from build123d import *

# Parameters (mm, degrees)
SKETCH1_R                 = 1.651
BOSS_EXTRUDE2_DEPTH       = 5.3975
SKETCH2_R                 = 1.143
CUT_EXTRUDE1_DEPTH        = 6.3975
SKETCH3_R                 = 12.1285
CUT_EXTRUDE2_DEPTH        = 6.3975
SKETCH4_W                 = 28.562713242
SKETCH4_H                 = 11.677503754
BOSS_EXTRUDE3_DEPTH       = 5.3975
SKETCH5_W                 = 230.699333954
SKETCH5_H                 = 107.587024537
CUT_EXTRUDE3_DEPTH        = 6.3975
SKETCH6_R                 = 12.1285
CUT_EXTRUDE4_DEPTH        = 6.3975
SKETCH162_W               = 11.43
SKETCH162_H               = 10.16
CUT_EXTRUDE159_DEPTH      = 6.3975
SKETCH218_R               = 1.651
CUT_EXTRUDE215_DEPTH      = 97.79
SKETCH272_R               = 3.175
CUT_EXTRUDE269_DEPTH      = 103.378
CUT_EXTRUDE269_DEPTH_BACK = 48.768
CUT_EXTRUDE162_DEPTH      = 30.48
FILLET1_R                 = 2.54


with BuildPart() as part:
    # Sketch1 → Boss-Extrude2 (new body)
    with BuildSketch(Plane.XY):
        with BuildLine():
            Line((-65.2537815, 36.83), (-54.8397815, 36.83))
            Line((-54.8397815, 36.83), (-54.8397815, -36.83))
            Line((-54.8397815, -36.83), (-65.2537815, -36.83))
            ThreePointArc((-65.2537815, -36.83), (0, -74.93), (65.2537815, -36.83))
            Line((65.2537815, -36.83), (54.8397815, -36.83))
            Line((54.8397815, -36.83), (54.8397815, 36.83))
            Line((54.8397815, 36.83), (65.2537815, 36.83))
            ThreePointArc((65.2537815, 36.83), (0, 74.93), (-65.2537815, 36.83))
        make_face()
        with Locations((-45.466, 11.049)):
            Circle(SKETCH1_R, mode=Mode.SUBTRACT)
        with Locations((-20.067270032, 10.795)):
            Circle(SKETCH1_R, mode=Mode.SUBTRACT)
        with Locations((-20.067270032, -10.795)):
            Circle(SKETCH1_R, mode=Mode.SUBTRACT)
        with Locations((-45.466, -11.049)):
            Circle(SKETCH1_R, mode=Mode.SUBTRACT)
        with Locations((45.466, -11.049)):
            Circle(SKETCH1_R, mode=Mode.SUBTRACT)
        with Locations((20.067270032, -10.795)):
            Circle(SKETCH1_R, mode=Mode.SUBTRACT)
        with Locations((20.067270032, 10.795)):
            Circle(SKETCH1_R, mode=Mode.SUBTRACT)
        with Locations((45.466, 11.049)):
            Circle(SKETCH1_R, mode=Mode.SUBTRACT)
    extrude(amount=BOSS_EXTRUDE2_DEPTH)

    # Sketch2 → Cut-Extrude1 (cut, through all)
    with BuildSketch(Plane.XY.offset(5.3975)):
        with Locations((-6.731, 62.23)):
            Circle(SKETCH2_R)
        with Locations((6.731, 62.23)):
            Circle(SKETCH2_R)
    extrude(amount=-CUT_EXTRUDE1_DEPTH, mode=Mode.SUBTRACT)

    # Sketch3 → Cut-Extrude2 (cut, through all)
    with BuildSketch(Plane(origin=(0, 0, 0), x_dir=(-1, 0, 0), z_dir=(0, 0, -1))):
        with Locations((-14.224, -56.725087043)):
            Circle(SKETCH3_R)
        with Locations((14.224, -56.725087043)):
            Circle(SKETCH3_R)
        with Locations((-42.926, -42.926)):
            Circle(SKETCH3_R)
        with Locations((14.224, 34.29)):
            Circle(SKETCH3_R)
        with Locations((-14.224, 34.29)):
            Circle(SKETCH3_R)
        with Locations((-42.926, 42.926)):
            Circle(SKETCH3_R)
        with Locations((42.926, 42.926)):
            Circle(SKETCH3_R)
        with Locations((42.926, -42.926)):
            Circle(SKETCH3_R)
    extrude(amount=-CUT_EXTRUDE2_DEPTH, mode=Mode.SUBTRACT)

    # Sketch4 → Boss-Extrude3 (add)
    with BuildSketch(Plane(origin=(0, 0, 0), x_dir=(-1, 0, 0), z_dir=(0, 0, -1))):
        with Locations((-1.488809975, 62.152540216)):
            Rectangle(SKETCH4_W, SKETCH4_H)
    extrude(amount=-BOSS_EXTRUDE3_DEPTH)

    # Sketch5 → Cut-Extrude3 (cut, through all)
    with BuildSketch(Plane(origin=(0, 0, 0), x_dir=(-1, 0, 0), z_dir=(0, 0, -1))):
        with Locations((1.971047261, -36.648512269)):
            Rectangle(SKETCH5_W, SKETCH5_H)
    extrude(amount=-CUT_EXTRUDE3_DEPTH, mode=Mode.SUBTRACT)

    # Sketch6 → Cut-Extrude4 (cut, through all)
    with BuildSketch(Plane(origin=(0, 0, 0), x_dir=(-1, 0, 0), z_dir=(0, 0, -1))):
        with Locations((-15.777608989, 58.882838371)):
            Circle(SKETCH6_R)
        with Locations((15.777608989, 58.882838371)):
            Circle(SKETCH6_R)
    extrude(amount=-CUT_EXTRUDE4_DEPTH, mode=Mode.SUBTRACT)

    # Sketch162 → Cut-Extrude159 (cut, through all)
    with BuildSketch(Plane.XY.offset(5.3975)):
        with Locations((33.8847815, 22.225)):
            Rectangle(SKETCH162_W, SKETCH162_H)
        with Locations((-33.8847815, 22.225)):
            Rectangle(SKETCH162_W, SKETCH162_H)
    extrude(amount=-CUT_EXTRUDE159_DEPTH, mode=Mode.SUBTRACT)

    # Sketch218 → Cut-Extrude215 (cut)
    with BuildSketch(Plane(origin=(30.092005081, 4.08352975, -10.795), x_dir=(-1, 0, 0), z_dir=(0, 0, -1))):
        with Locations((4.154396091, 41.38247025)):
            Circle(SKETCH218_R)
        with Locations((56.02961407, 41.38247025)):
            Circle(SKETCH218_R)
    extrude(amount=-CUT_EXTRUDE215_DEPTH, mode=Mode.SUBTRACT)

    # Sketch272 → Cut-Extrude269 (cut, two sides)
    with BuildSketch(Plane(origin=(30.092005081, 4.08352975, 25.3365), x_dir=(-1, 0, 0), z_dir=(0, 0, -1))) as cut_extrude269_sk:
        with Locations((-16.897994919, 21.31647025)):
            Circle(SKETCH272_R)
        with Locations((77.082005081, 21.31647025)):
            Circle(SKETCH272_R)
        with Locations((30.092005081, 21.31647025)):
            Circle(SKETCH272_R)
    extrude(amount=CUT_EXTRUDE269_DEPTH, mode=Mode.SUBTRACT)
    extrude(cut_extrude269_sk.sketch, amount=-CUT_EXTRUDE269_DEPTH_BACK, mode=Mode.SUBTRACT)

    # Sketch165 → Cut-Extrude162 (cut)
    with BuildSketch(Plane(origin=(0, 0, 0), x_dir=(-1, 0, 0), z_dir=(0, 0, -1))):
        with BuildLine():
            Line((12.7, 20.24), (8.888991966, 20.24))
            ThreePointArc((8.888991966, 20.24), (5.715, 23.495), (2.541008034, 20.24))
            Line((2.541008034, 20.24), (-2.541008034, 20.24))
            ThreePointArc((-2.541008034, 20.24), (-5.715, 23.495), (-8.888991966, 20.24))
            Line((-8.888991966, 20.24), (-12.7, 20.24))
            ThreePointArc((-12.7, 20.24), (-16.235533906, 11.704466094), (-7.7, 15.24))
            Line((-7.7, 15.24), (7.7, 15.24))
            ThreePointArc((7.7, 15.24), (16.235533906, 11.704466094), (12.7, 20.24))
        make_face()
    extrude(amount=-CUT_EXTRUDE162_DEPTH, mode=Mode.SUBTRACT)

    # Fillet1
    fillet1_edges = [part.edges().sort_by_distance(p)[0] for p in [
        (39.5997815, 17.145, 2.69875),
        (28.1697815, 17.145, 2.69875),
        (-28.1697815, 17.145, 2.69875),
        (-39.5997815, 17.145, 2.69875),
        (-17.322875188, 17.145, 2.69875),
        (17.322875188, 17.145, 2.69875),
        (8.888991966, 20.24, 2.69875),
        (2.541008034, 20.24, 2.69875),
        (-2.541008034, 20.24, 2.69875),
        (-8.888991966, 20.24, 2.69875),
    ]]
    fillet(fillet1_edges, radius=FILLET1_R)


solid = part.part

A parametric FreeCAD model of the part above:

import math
import FreeCAD as App
import Part
import Sketcher

V = App.Vector
Q = App.Units.Quantity


def edges_at(feature, points):
    """Names of the edges that pass closest to the given points."""
    edges = feature.Shape.Edges
    near = lambda p: min(range(len(edges)), key=lambda i: edges[i].distToShape(Part.Vertex(*p))[0])
    return sorted({f"Edge{near(p) + 1}" for p in points})

doc = App.newDocument("Part")
params = doc.addObject("Spreadsheet::Sheet", "Params")
for row, (alias, value) in enumerate([
    ("sketch1_diameter", "0.13 in"),
    ("sketch1_radius", "2.95 in"),
    ("sketch1_height", "2.9 in"),
    ("sketch1_width", "0.41 in"),
    ("pad1_length", "0.2125 in"),
    ("sketch2_diameter", "0.09 in"),
    ("sketch3_diameter", "0.955 in"),
    ("pad2_length", "0.2125 in"),
    ("sketch6_diameter", "0.955 in"),
    ("sketch7_height", "0.4 in"),
    ("sketch7_width", "0.45 in"),
    ("sketch8_diameter", "0.13 in"),
    ("pocket6_length", "3.85 in"),
    ("sketch9_diameter", "0.25 in"),
    ("sketch10_radius", "0.125 in"),
    ("pocket8_length", "1.2 in"),
    ("fillet_radius", "0.1 in"),
], start=1):
    params.set(f"A{row}", alias)
    params.set(f"B{row}", "=" + value)
    params.setAlias(f"B{row}", alias)

body = doc.addObject("PartDesign::Body", "Body")

sketch1 = body.newObject("Sketcher::SketchObject", "Sketch")
sketch1.AttachmentSupport = (doc.getObject("XY_Plane"), [""])
sketch1.MapMode = "FlatFace"
sketch1.addGeometry([
    Part.LineSegment(V(-65.253782, 36.83, 0), V(-54.839782, 36.83, 0)),
    Part.LineSegment(V(-54.839782, 36.83, 0), V(-54.839782, -36.83, 0)),
    Part.LineSegment(V(-54.839782, -36.83, 0), V(-65.253782, -36.83, 0)),
    Part.ArcOfCircle(Part.Circle(V(0, 0, 0), V(0, 0, 1), 74.93), math.radians(-150.559107), math.radians(-29.440893)),
    Part.LineSegment(V(65.253782, -36.83, 0), V(54.839782, -36.83, 0)),
    Part.LineSegment(V(54.839782, -36.83, 0), V(54.839782, 36.83, 0)),
    Part.LineSegment(V(54.839782, 36.83, 0), V(65.253782, 36.83, 0)),
    Part.ArcOfCircle(Part.Circle(V(0, 0, 0), V(0, 0, 1), 74.93), math.radians(29.440893), math.radians(150.559107)),
    Part.Circle(V(-45.466, -11.049, 0), V(0, 0, 1), 1.651),
    Part.Circle(V(-20.06727, -10.795, 0), V(0, 0, 1), 1.651),
    Part.Circle(V(20.06727, -10.795, 0), V(0, 0, 1), 1.651),
    Part.Circle(V(45.466, -11.049, 0), V(0, 0, 1), 1.651),
    Part.Circle(V(-45.466, 11.049, 0), V(0, 0, 1), 1.651),
    Part.Circle(V(-20.06727, 10.795, 0), V(0, 0, 1), 1.651),
    Part.Circle(V(20.06727, 10.795, 0), V(0, 0, 1), 1.651),
    Part.Circle(V(45.466, 11.049, 0), V(0, 0, 1), 1.651),
], False)
sketch1.addConstraint([
    Sketcher.Constraint("Coincident", 0, 2, 1, 1),
    Sketcher.Constraint("Coincident", 1, 2, 2, 1),
    Sketcher.Constraint("Coincident", 2, 2, 3, 1),
    Sketcher.Constraint("Coincident", 3, 2, 4, 1),
    Sketcher.Constraint("Coincident", 4, 2, 5, 1),
    Sketcher.Constraint("Coincident", 5, 2, 6, 1),
    Sketcher.Constraint("Coincident", 6, 2, 7, 1),
    Sketcher.Constraint("Coincident", 7, 2, 0, 1),
    Sketcher.Constraint("Horizontal", 0),
    Sketcher.Constraint("Vertical", 1),
    Sketcher.Constraint("Horizontal", 2),
    Sketcher.Constraint("Horizontal", 4),
    Sketcher.Constraint("Vertical", 5),
    Sketcher.Constraint("Horizontal", 6),
    Sketcher.Constraint("Coincident", 3, 3, -1, 1),
    Sketcher.Constraint("Coincident", 7, 3, -1, 1),
    Sketcher.Constraint("Equal", 3, 7),
    Sketcher.Constraint("Equal", 8, 9),
    Sketcher.Constraint("Equal", 9, 10),
    Sketcher.Constraint("Equal", 10, 11),
    Sketcher.Constraint("Equal", 11, 12),
    Sketcher.Constraint("Equal", 12, 13),
    Sketcher.Constraint("Equal", 13, 14),
    Sketcher.Constraint("Equal", 14, 15),
    Sketcher.Constraint("Symmetric", 11, 3, 12, 3, -1, 1),
    Sketcher.Constraint("Symmetric", 10, 3, 13, 3, -1, 1),
    Sketcher.Constraint("Symmetric", 9, 3, 14, 3, -1, 1),
    Sketcher.Constraint("Symmetric", 8, 3, 15, 3, -1, 1),
    Sketcher.Constraint("Symmetric", 0, 2, 4, 2, -1, 1),
    Sketcher.Constraint("Symmetric", 9, 3, 10, 3, -2),
    Sketcher.Constraint("Symmetric", 8, 3, 11, 3, -2),
    Sketcher.Constraint("Horizontal", 2, 2, 3, 2),
    Sketcher.Constraint("Horizontal", 0, 2, 5, 2),
    Sketcher.Constraint("Diameter", 8, Q("0.13 in")),
    Sketcher.Constraint("Radius", 3, Q("2.95 in")),
    Sketcher.Constraint("DistanceY", 1, 2, 1, 1, Q("2.9 in")),
    Sketcher.Constraint("DistanceX", 0, 1, 0, 2, Q("0.41 in")),
    Sketcher.Constraint("DistanceX", 8, 3, -1, 1, Q("1.79 in")),
    Sketcher.Constraint("DistanceY", 8, 3, 9, 3, Q("0.01 in")),
    Sketcher.Constraint("DistanceY", 8, 3, 12, 3, Q("0.87 in")),
    Sketcher.Constraint("DistanceX", 9, 3, 10, 3, Q("1.5801 in")),
])
sketch1.setExpression("Constraints[33]", "Params.sketch1_diameter")
sketch1.setExpression("Constraints[34]", "Params.sketch1_radius")
sketch1.setExpression("Constraints[35]", "Params.sketch1_height")
sketch1.setExpression("Constraints[36]", "Params.sketch1_width")
pad1 = body.newObject("PartDesign::Pad", "Pad")
pad1.Profile = sketch1
pad1.setExpression("Length", "Params.pad1_length")

sketch2 = body.newObject("Sketcher::SketchObject", "Sketch001")
sketch2.AttachmentSupport = (doc.getObject("XY_Plane"), [""])
sketch2.MapMode = "FlatFace"
sketch2.AttachmentOffset = App.Placement(V(0, 0, 0.2125 * 25.4), App.Rotation())
sketch2.addGeometry([
    Part.Circle(V(-6.731, 62.23, 0), V(0, 0, 1), 1.143),
    Part.Circle(V(6.731, 62.23, 0), V(0, 0, 1), 1.143),
], False)
sketch2.addConstraint([
    Sketcher.Constraint("Equal", 0, 1),
    Sketcher.Constraint("Symmetric", 0, 3, 1, 3, -2),
    Sketcher.Constraint("Diameter", 0, Q("0.09 in")),
    Sketcher.Constraint("DistanceY", -1, 1, 0, 3, Q("2.45 in")),
    Sketcher.Constraint("DistanceX", 0, 3, 1, 3, Q("0.53 in")),
])
sketch2.setExpression("Constraints[2]", "Params.sketch2_diameter")
pocket1 = body.newObject("PartDesign::Pocket", "Pocket")
pocket1.Profile = sketch2
pocket1.Type = "ThroughAll"

sketch3 = body.newObject("Sketcher::SketchObject", "Sketch002")
sketch3.AttachmentSupport = (doc.getObject("XY_Plane"), [""])
sketch3.MapMode = "FlatFace"
sketch3.addGeometry([
    Part.Circle(V(14.224, -56.725087, 0), V(0, 0, 1), 12.1285),
    Part.Circle(V(-14.224, -56.725087, 0), V(0, 0, 1), 12.1285),
    Part.Circle(V(42.926, -42.926, 0), V(0, 0, 1), 12.1285),
    Part.Circle(V(-14.224, 34.29, 0), V(0, 0, 1), 12.1285),
    Part.Circle(V(14.224, 34.29, 0), V(0, 0, 1), 12.1285),
    Part.Circle(V(42.926, 42.926, 0), V(0, 0, 1), 12.1285),
    Part.Circle(V(-42.926, 42.926, 0), V(0, 0, 1), 12.1285),
    Part.Circle(V(-42.926, -42.926, 0), V(0, 0, 1), 12.1285),
], False)
sketch3.addConstraint([
    Sketcher.Constraint("Equal", 0, 1),
    Sketcher.Constraint("Equal", 1, 2),
    Sketcher.Constraint("Equal", 2, 3),
    Sketcher.Constraint("Equal", 3, 4),
    Sketcher.Constraint("Equal", 4, 5),
    Sketcher.Constraint("Equal", 5, 6),
    Sketcher.Constraint("Equal", 6, 7),
    Sketcher.Constraint("Symmetric", 2, 3, 6, 3, -1, 1),
    Sketcher.Constraint("Symmetric", 5, 3, 7, 3, -1, 1),
    Sketcher.Constraint("Symmetric", 0, 3, 1, 3, -2),
    Sketcher.Constraint("Symmetric", 3, 3, 4, 3, -2),
    Sketcher.Constraint("Symmetric", 5, 3, 6, 3, -2),
    Sketcher.Constraint("Vertical", 1, 3, 3, 3),
    Sketcher.Constraint("Diameter", 0, Q("0.955 in")),
    Sketcher.Constraint("DistanceX", -1, 1, 0, 3, Q("0.56 in")),
    Sketcher.Constraint("DistanceX", -1, 1, 2, 3, Q("1.69 in")),
    Sketcher.Constraint("DistanceY", 2, 3, -1, 1, Q("1.69 in")),
    Sketcher.Constraint("DistanceY", -1, 1, 3, 3, Q("1.35 in")),
    Sketcher.Constraint("DistanceY", 0, 3, -1, 1, 56.725087),
])
sketch3.setExpression("Constraints[13]", "Params.sketch3_diameter")
pocket2 = body.newObject("PartDesign::Pocket", "Pocket001")
pocket2.Profile = sketch3
pocket2.Type = "ThroughAll"
pocket2.Reversed = True

sketch4 = body.newObject("Sketcher::SketchObject", "Sketch003")
sketch4.AttachmentSupport = (doc.getObject("XY_Plane"), [""])
sketch4.MapMode = "FlatFace"
sketch4.addGeometry([
    Part.LineSegment(V(15.770167, 67.991292, 0), V(15.770167, 56.313788, 0)),
    Part.LineSegment(V(15.770167, 56.313788, 0), V(-12.792547, 56.313788, 0)),
    Part.LineSegment(V(-12.792547, 56.313788, 0), V(-12.792547, 67.991292, 0)),
    Part.LineSegment(V(-12.792547, 67.991292, 0), V(15.770167, 67.991292, 0)),
], False)
sketch4.addConstraint([
    Sketcher.Constraint("Coincident", 0, 2, 1, 1),
    Sketcher.Constraint("Coincident", 1, 2, 2, 1),
    Sketcher.Constraint("Coincident", 2, 2, 3, 1),
    Sketcher.Constraint("Coincident", 3, 2, 0, 1),
    Sketcher.Constraint("Vertical", 0),
    Sketcher.Constraint("Horizontal", 1),
    Sketcher.Constraint("Vertical", 2),
    Sketcher.Constraint("Horizontal", 3),
    Sketcher.Constraint("DistanceX", 1, 2, 1, 1, 28.562713),
    Sketcher.Constraint("DistanceY", 0, 2, 0, 1, 11.677504),
    Sketcher.Constraint("DistanceY", -1, 1, 0, 2, 56.313788),
    Sketcher.Constraint("DistanceX", -1, 1, 0, 2, 15.770167),
])
pad2 = body.newObject("PartDesign::Pad", "Pad001")
pad2.Profile = sketch4
pad2.setExpression("Length", "Params.pad2_length")

sketch5 = body.newObject("Sketcher::SketchObject", "Sketch004")
sketch5.AttachmentSupport = (doc.getObject("XY_Plane"), [""])
sketch5.MapMode = "FlatFace"
sketch5.addGeometry([
    Part.LineSegment(V(113.37862, 17.145, 0), V(113.37862, -90.442025, 0)),
    Part.LineSegment(V(113.37862, -90.442025, 0), V(-117.320714, -90.442025, 0)),
    Part.LineSegment(V(-117.320714, -90.442025, 0), V(-117.320714, 17.145, 0)),
    Part.LineSegment(V(-117.320714, 17.145, 0), V(113.37862, 17.145, 0)),
], False)
sketch5.addConstraint([
    Sketcher.Constraint("Coincident", 0, 2, 1, 1),
    Sketcher.Constraint("Coincident", 1, 2, 2, 1),
    Sketcher.Constraint("Coincident", 2, 2, 3, 1),
    Sketcher.Constraint("Coincident", 3, 2, 0, 1),
    Sketcher.Constraint("Vertical", 0),
    Sketcher.Constraint("Horizontal", 1),
    Sketcher.Constraint("Vertical", 2),
    Sketcher.Constraint("Horizontal", 3),
    Sketcher.Constraint("DistanceY", -1, 1, 2, 2, Q("0.675 in")),
    Sketcher.Constraint("DistanceX", 1, 2, 1, 1, 230.699334),
    Sketcher.Constraint("DistanceY", 0, 2, 0, 1, 107.587025),
    Sketcher.Constraint("DistanceX", -1, 1, 0, 2, 113.37862),
])
pocket3 = body.newObject("PartDesign::Pocket", "Pocket002")
pocket3.Profile = sketch5
pocket3.Type = "ThroughAll"
pocket3.Reversed = True

sketch6 = body.newObject("Sketcher::SketchObject", "Sketch005")
sketch6.AttachmentSupport = (doc.getObject("XY_Plane"), [""])
sketch6.MapMode = "FlatFace"
sketch6.addGeometry([
    Part.Circle(V(15.777609, 58.882838, 0), V(0, 0, 1), 12.1285),
    Part.Circle(V(-15.777609, 58.882838, 0), V(0, 0, 1), 12.1285),
], False)
sketch6.addConstraint([
    Sketcher.Constraint("Equal", 0, 1),
    Sketcher.Constraint("Symmetric", 0, 3, 1, 3, -2),
    Sketcher.Constraint("Diameter", 0, Q("0.955 in")),
    Sketcher.Constraint("DistanceX", -1, 1, 0, 3, 15.777609),
    Sketcher.Constraint("DistanceY", -1, 1, 0, 3, 58.882838),
])
sketch6.setExpression("Constraints[2]", "Params.sketch6_diameter")
pocket4 = body.newObject("PartDesign::Pocket", "Pocket003")
pocket4.Profile = sketch6
pocket4.Type = "ThroughAll"
pocket4.Reversed = True

sketch7 = body.newObject("Sketcher::SketchObject", "Sketch006")
sketch7.AttachmentSupport = (doc.getObject("XY_Plane"), [""])
sketch7.MapMode = "FlatFace"
sketch7.AttachmentOffset = App.Placement(V(0, 0, 0.2125 * 25.4), App.Rotation())
sketch7.addGeometry([
    Part.LineSegment(V(28.169781, 27.305, 0), V(28.169781, 17.145, 0)),
    Part.LineSegment(V(28.169781, 17.145, 0), V(39.599781, 17.145, 0)),
    Part.LineSegment(V(39.599781, 17.145, 0), V(39.599781, 27.305, 0)),
    Part.LineSegment(V(39.599781, 27.305, 0), V(28.169781, 27.305, 0)),
    Part.LineSegment(V(-39.599781, 27.305, 0), V(-39.599781, 17.145, 0)),
    Part.LineSegment(V(-39.599781, 17.145, 0), V(-28.169781, 17.145, 0)),
    Part.LineSegment(V(-28.169781, 17.145, 0), V(-28.169781, 27.305, 0)),
    Part.LineSegment(V(-28.169781, 27.305, 0), V(-39.599781, 27.305, 0)),
], False)
sketch7.addConstraint([
    Sketcher.Constraint("Coincident", 0, 2, 1, 1),
    Sketcher.Constraint("Coincident", 1, 2, 2, 1),
    Sketcher.Constraint("Coincident", 2, 2, 3, 1),
    Sketcher.Constraint("Coincident", 3, 2, 0, 1),
    Sketcher.Constraint("Coincident", 4, 2, 5, 1),
    Sketcher.Constraint("Coincident", 5, 2, 6, 1),
    Sketcher.Constraint("Coincident", 6, 2, 7, 1),
    Sketcher.Constraint("Coincident", 7, 2, 4, 1),
    Sketcher.Constraint("Vertical", 0),
    Sketcher.Constraint("Horizontal", 1),
    Sketcher.Constraint("Vertical", 2),
    Sketcher.Constraint("Horizontal", 3),
    Sketcher.Constraint("Vertical", 4),
    Sketcher.Constraint("Horizontal", 5),
    Sketcher.Constraint("Vertical", 6),
    Sketcher.Constraint("Horizontal", 7),
    Sketcher.Constraint("Symmetric", 1, 2, 4, 2, -2),
    Sketcher.Constraint("Symmetric", 3, 2, 6, 2, -2),
    Sketcher.Constraint("DistanceY", 0, 2, 0, 1, Q("0.4 in")),
    Sketcher.Constraint("DistanceX", 1, 1, 1, 2, Q("0.45 in")),
    Sketcher.Constraint("DistanceY", -1, 1, 0, 2, Q("0.675 in")),
    Sketcher.Constraint("DistanceX", -1, 1, 0, 2, 28.169781),
])
sketch7.setExpression("Constraints[18]", "Params.sketch7_height")
sketch7.setExpression("Constraints[19]", "Params.sketch7_width")
pocket5 = body.newObject("PartDesign::Pocket", "Pocket004")
pocket5.Profile = sketch7
pocket5.Type = "ThroughAll"

sketch8 = body.newObject("Sketcher::SketchObject", "Sketch007")
sketch8.AttachmentSupport = (doc.getObject("XY_Plane"), [""])
sketch8.MapMode = "FlatFace"
sketch8.AttachmentOffset = App.Placement(V(0, 0, -0.425 * 25.4), App.Rotation())
sketch8.addGeometry([
    Part.Circle(V(25.937609, 45.466, 0), V(0, 0, 1), 1.651),
    Part.Circle(V(-25.937609, 45.466, 0), V(0, 0, 1), 1.651),
], False)
sketch8.addConstraint([
    Sketcher.Constraint("Equal", 0, 1),
    Sketcher.Constraint("Symmetric", 0, 3, 1, 3, -2),
    Sketcher.Constraint("Diameter", 0, Q("0.13 in")),
    Sketcher.Constraint("DistanceY", -1, 1, 0, 3, Q("1.79 in")),
    Sketcher.Constraint("DistanceX", -1, 1, 0, 3, 25.937609),
])
sketch8.setExpression("Constraints[2]", "Params.sketch8_diameter")
pocket6 = body.newObject("PartDesign::Pocket", "Pocket005")
pocket6.Profile = sketch8
pocket6.setExpression("Length", "Params.pocket6_length")
pocket6.Reversed = True

sketch9 = body.newObject("Sketcher::SketchObject", "Sketch008")
sketch9.AttachmentSupport = (doc.getObject("XY_Plane"), [""])
sketch9.MapMode = "FlatFace"
sketch9.AttachmentOffset = App.Placement(V(0, 0, 0.9975 * 25.4), App.Rotation())
sketch9.addGeometry([
    Part.Circle(V(46.99, 25.4, 0), V(0, 0, 1), 3.175),
    Part.Circle(V(-46.99, 25.4, 0), V(0, 0, 1), 3.175),
    Part.Circle(V(0, 25.4, 0), V(0, 0, 1), 3.175),
], False)
sketch9.addConstraint([
    Sketcher.Constraint("Equal", 0, 1),
    Sketcher.Constraint("Equal", 1, 2),
    Sketcher.Constraint("Symmetric", 0, 3, 1, 3, -2),
    Sketcher.Constraint("PointOnObject", 2, 3, -2),
    Sketcher.Constraint("Horizontal", 1, 3, 2, 3),
    Sketcher.Constraint("Diameter", 0, Q("0.25 in")),
    Sketcher.Constraint("DistanceY", -1, 1, 0, 3, Q("1 in")),
    Sketcher.Constraint("DistanceX", 1, 3, 0, 3, Q("3.7 in")),
])
sketch9.setExpression("Constraints[5]", "Params.sketch9_diameter")
pocket7 = body.newObject("PartDesign::Pocket", "Pocket006")
pocket7.Profile = sketch9
pocket7.Type = "ThroughAll"
pocket7.Midplane = True

sketch10 = body.newObject("Sketcher::SketchObject", "Sketch009")
sketch10.AttachmentSupport = (doc.getObject("XY_Plane"), [""])
sketch10.MapMode = "FlatFace"
sketch10.addGeometry([
    Part.LineSegment(V(-12.7, 20.24, 0), V(-8.888992, 20.24, 0)),
    Part.ArcOfCircle(Part.Circle(V(-5.715, 20.32, 0), V(0, 0, 1), 3.175), math.radians(-1.443826), math.radians(181.443826)),
    Part.LineSegment(V(-2.541008, 20.24, 0), V(2.541008, 20.24, 0)),
    Part.ArcOfCircle(Part.Circle(V(5.715, 20.32, 0), V(0, 0, 1), 3.175), math.radians(-1.443826), math.radians(181.443826)),
    Part.LineSegment(V(8.888992, 20.24, 0), V(12.7, 20.24, 0)),
    Part.ArcOfCircle(Part.Circle(V(12.7, 15.24, 0), V(0, 0, 1), 5), math.radians(180), math.radians(450)),
    Part.LineSegment(V(7.7, 15.24, 0), V(-7.7, 15.24, 0)),
    Part.ArcOfCircle(Part.Circle(V(-12.7, 15.24, 0), V(0, 0, 1), 5), math.radians(90), math.radians(360)),
], False)
sketch10.addConstraint([
    Sketcher.Constraint("Coincident", 0, 2, 1, 2),
    Sketcher.Constraint("Coincident", 1, 1, 2, 1),
    Sketcher.Constraint("Coincident", 2, 2, 3, 2),
    Sketcher.Constraint("Coincident", 3, 1, 4, 1),
    Sketcher.Constraint("Tangent", 4, 2, 5, 2),
    Sketcher.Constraint("Coincident", 5, 1, 6, 1),
    Sketcher.Constraint("Coincident", 6, 2, 7, 2),
    Sketcher.Constraint("Tangent", 7, 1, 0, 1),
    Sketcher.Constraint("Horizontal", 0),
    Sketcher.Constraint("Horizontal", 2),
    Sketcher.Constraint("Horizontal", 4),
    Sketcher.Constraint("Horizontal", 6),
    Sketcher.Constraint("Equal", 1, 3),
    Sketcher.Constraint("Equal", 5, 7),
    Sketcher.Constraint("Symmetric", 1, 3, 3, 3, -2),
    Sketcher.Constraint("Symmetric", 5, 3, 7, 3, -2),
    Sketcher.Constraint("Horizontal", 0, 2, 1, 1),
    Sketcher.Constraint("Horizontal", 7, 3, 5, 1),
    Sketcher.Constraint("Radius", 1, Q("0.125 in")),
    Sketcher.Constraint("DistanceX", 7, 3, 5, 3, Q("1 in")),
    Sketcher.Constraint("DistanceY", -1, 1, 1, 3, Q("0.8 in")),
    Sketcher.Constraint("DistanceY", -1, 1, 5, 3, Q("0.6 in")),
    Sketcher.Constraint("Radius", 5, 5.0),
    Sketcher.Constraint("DistanceX", 1, 3, 3, 3, Q("0.45 in")),
])
sketch10.setExpression("Constraints[18]", "Params.sketch10_radius")
pocket8 = body.newObject("PartDesign::Pocket", "Pocket007")
pocket8.Profile = sketch10
pocket8.setExpression("Length", "Params.pocket8_length")
pocket8.Reversed = True
doc.recompute()

fillet = body.newObject("PartDesign::Fillet", "Fillet")
fillet.Base = (pocket8, edges_at(pocket8, [
    (39.6, 17.145, 2.699),
    (28.17, 17.145, 2.699),
    (-28.17, 17.145, 2.699),
    (-39.6, 17.145, 2.699),
    (-17.323, 17.145, 2.699),
    (17.323, 17.145, 2.699),
    (8.889, 20.24, 2.699),
    (2.541, 20.24, 2.699),
    (-2.541, 20.24, 2.699),
    (-8.889, 20.24, 2.699),
]))
fillet.setExpression("Radius", "Params.fillet_radius")

doc.recompute()
